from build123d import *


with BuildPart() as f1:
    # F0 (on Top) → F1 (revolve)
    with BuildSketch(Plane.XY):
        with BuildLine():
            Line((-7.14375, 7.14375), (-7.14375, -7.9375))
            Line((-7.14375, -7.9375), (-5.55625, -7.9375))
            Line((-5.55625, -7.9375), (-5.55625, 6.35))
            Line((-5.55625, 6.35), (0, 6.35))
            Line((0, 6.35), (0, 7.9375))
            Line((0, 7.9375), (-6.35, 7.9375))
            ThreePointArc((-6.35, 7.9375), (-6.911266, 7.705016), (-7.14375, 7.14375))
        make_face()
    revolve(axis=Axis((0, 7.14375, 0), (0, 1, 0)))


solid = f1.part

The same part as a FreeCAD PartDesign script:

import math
import FreeCAD as App
import Part
import Sketcher

V = App.Vector
Q = App.Units.Quantity

doc = App.newDocument("Part")
body = doc.addObject("PartDesign::Body", "Body")

# Sketch on XY plane
sketch1 = doc.addObject("Sketcher::SketchObject", "Sketch")
body.addObject(sketch1)
sketch1.AttachmentSupport = (doc.XY_Plane, [""])
sketch1.MapMode = "FlatFace"
sketch1.addGeometry(Part.LineSegment(V(-7.14375, 7.14375, 0), V(-7.14375, -7.9375, 0)), False)
sketch1.addGeometry(Part.LineSegment(V(-7.14375, -7.9375, 0), V(-5.55625, -7.9375, 0)), False)
sketch1.addGeometry(Part.LineSegment(V(-5.55625, -7.9375, 0), V(-5.55625, 6.35, 0)), False)
sketch1.addGeometry(Part.LineSegment(V(-5.55625, 6.35, 0), V(0, 6.35, 0)), False)
sketch1.addGeometry(Part.LineSegment(V(0, 6.35, 0), V(0, 7.9375, 0)), False)
sketch1.addGeometry(Part.LineSegment(V(0, 7.9375, 0), V(-6.35, 7.9375, 0)), False)
sketch1.addGeometry(Part.ArcOfCircle(Part.Circle(V(-6.35, 7.14375, 0), V(0, 0, 1), 0.79375), math.radians(90.000002), math.radians(179.999998)), False)
sketch1.addConstraint(Sketcher.Constraint("Coincident", 0, 2, 1, 1))
sketch1.addConstraint(Sketcher.Constraint("Coincident", 1, 2, 2, 1))
sketch1.addConstraint(Sketcher.Constraint("Coincident", 2, 2, 3, 1))
sketch1.addConstraint(Sketcher.Constraint("Coincident", 3, 2, 4, 1))
sketch1.addConstraint(Sketcher.Constraint("Coincident", 4, 2, 5, 1))
sketch1.addConstraint(Sketcher.Constraint("Tangent", 5, 2, 6, 1))
sketch1.addConstraint(Sketcher.Constraint("Tangent", 6, 2, 0, 1))
sketch1.addConstraint(Sketcher.Constraint("Vertical", 0))
sketch1.addConstraint(Sketcher.Constraint("Horizontal", 1))
sketch1.addConstraint(Sketcher.Constraint("Vertical", 2))
sketch1.addConstraint(Sketcher.Constraint("Horizontal", 3))
sketch1.addConstraint(Sketcher.Constraint("Vertical", 4))
sketch1.addConstraint(Sketcher.Constraint("Horizontal", 5))
sketch1.addConstraint(Sketcher.Constraint("PointOnObject", 3, 2, -2))
sketch1.addConstraint(Sketcher.Constraint("Equal", 1, 4))
sketch1.addConstraint(Sketcher.Constraint("Radius", 6, Q("0.03125 in")))
sketch1.addConstraint(Sketcher.Constraint("DistanceX", 5, 2, 5, 1, Q("0.25 in")))
sketch1.addConstraint(Sketcher.Constraint("DistanceX", 1, 1, 1, 2, Q("0.0625 in")))
sketch1.addConstraint(Sketcher.Constraint("DistanceY", 0, 2, 0, 1, Q("0.59375 in")))
sketch1.addConstraint(Sketcher.Constraint("DistanceY", -1, 1, 2, 2, Q("0.25 in")))
revolution = doc.addObject("PartDesign::Revolution", "Revolution")
body.addObject(revolution)
revolution.Profile = sketch1
revolution.ReferenceAxis = (sketch1, ["V_Axis"])
revolution.Angle = 360

doc.recompute()
